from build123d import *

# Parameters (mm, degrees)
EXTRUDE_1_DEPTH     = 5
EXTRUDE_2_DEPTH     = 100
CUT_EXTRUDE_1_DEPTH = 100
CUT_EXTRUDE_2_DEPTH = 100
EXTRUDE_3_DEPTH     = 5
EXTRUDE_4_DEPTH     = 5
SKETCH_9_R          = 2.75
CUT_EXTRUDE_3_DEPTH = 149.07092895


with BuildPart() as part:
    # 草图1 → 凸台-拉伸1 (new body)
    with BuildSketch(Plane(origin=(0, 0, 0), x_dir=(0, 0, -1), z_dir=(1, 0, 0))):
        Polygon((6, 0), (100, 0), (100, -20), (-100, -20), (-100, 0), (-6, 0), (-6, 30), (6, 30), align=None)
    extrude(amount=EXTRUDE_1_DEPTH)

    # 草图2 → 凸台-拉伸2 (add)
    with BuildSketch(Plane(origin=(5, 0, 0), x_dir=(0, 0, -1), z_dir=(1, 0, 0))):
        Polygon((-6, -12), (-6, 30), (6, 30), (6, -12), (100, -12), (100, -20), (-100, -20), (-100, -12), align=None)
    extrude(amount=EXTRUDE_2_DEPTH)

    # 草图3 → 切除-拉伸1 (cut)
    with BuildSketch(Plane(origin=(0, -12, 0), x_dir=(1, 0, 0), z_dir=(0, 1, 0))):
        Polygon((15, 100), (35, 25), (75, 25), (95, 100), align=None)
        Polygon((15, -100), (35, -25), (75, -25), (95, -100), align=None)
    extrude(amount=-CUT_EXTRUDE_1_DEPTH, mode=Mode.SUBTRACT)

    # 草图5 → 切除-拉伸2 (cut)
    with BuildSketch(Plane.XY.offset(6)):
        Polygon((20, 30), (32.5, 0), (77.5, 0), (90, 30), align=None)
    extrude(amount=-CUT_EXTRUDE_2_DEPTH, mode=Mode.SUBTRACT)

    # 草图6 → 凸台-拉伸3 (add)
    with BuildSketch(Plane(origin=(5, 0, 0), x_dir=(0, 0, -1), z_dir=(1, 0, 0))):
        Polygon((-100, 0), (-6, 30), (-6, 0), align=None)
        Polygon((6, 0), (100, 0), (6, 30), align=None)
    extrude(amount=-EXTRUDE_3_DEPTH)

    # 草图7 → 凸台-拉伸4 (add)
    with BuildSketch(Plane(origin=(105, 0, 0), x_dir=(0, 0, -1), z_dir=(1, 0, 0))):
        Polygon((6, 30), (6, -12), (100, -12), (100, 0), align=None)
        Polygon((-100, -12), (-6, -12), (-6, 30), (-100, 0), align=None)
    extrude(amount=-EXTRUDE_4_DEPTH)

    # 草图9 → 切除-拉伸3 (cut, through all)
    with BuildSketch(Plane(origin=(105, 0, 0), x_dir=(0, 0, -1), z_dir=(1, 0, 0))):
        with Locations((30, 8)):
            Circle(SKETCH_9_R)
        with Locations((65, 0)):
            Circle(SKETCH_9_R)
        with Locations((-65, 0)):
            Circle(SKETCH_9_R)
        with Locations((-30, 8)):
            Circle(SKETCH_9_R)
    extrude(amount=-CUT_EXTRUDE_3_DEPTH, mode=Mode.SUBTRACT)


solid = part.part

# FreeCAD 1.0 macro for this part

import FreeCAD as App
import Part
import Sketcher

V = App.Vector
Q = App.Units.Quantity


def add_polygon(sketch, points):
    """Adds a closed chain of lines whose ends are joined by coincident constraints."""
    first, n = sketch.GeometryCount, len(points)
    for a, b in zip(points, points[1:] + points[:1]):
        sketch.addGeometry(Part.LineSegment(App.Vector(*a, 0), App.Vector(*b, 0)), False)
    for i in range(n):
        sketch.addConstraint(Sketcher.Constraint("Coincident", first + i, 2, first + (i + 1) % n, 1))

doc = App.newDocument("Part")
body = doc.addObject("PartDesign::Body", "Body")

# Sketch on YZ plane
sketch1 = body.newObject("Sketcher::SketchObject", "Sketch")
sketch1.AttachmentSupport = (doc.getObject("YZ_Plane"), [""])
sketch1.MapMode = "FlatFace"
add_polygon(sketch1, [(0, -100), (0, -6), (30, -6), (30, 6), (0, 6), (0, 100), (-20, 100), (-20, -100)])  # lines 0-7
sketch1.addConstraint([
    Sketcher.Constraint("Vertical", 0),
    Sketcher.Constraint("Horizontal", 1),
    Sketcher.Constraint("Vertical", 2),
    Sketcher.Constraint("Horizontal", 3),
    Sketcher.Constraint("Vertical", 4),
    Sketcher.Constraint("Horizontal", 5),
    Sketcher.Constraint("Vertical", 6),
    Sketcher.Constraint("Horizontal", 7),
    Sketcher.Constraint("Symmetric", 0, 2, 3, 2, -1, 1),
    Sketcher.Constraint("Symmetric", 4, 2, 7, 2, -1),
    Sketcher.Constraint("DistanceX", 1, 1, 1, 2, Q("30 mm")),
    Sketcher.Constraint("DistanceX", 5, 2, 5, 1, Q("20 mm")),
    Sketcher.Constraint("DistanceY", 0, 1, 0, 2, Q("94 mm")),
    Sketcher.Constraint("DistanceY", 2, 1, 2, 2, Q("12 mm")),
])
pad1 = body.newObject("PartDesign::Pad", "Pad")
pad1.Profile = sketch1
pad1.Length = 5

# Sketch on YZ plane
sketch2 = body.newObject("Sketcher::SketchObject", "Sketch001")
sketch2.AttachmentSupport = (doc.getObject("YZ_Plane"), [""])
sketch2.MapMode = "FlatFace"
sketch2.AttachmentOffset = App.Placement(V(0, 0, 5), App.Rotation())
add_polygon(sketch2, [(30, 6), (-12, 6), (-12, 100), (-20, 100), (-20, -100), (-12, -100), (-12, -6), (30, -6)])  # lines 0-7
sketch2.addConstraint([
    Sketcher.Constraint("Horizontal", 0),
    Sketcher.Constraint("Vertical", 1),
    Sketcher.Constraint("Horizontal", 2),
    Sketcher.Constraint("Vertical", 3),
    Sketcher.Constraint("Horizontal", 4),
    Sketcher.Constraint("Vertical", 5),
    Sketcher.Constraint("Horizontal", 6),
    Sketcher.Constraint("Vertical", 7),
    Sketcher.Constraint("Symmetric", 1, 2, 4, 2, -1),
    Sketcher.Constraint("Equal", 1, 5),
    Sketcher.Constraint("DistanceX", 0, 2, 0, 1, Q("42 mm")),
    Sketcher.Constraint("DistanceX", 2, 2, 2, 1, Q("8 mm")),
    Sketcher.Constraint("DistanceY", 1, 1, 1, 2, Q("94 mm")),
    Sketcher.Constraint("DistanceY", 3, 2, 3, 1, Q("200 mm")),
    Sketcher.Constraint("DistanceX", 0, 2, -1, 1, Q("12 mm")),
])
pad2 = body.newObject("PartDesign::Pad", "Pad001")
pad2.Profile = sketch2
pad2.Length = 100

# Sketch on XZ plane
sketch3 = body.newObject("Sketcher::SketchObject", "Sketch002")
sketch3.AttachmentSupport = (doc.getObject("XZ_Plane"), [""])
sketch3.MapMode = "FlatFace"
sketch3.AttachmentOffset = App.Placement(V(0, 0, 12), App.Rotation())
add_polygon(sketch3, [(15, -100), (35, -25), (75, -25), (95, -100)])  # lines 0-3
add_polygon(sketch3, [(35, 25), (15, 100), (95, 100), (75, 25)])  # lines 4-7
sketch3.addConstraint([
    Sketcher.Constraint("Horizontal", 1),
    Sketcher.Constraint("Horizontal", 3),
    Sketcher.Constraint("Horizontal", 5),
    Sketcher.Constraint("Horizontal", 7),
    Sketcher.Constraint("Symmetric", 3, 2, 4, 2, -1),
    Sketcher.Constraint("Symmetric", 1, 2, 6, 2, -1),
    Sketcher.Constraint("Parallel", 2, 4),
    Sketcher.Constraint("Parallel", 0, 6),
    Sketcher.Constraint("Vertical", 2, 2, 5, 2),
    Sketcher.Constraint("DistanceX", 1, 1, 1, 2, Q("40 mm")),
    Sketcher.Constraint("DistanceX", 3, 2, 3, 1, Q("80 mm")),
    Sketcher.Constraint("DistanceX", -1, 1, 0, 2, Q("35 mm")),
    Sketcher.Constraint("DistanceY", 0, 2, -1, 1, Q("25 mm")),
    Sketcher.Constraint("DistanceY", 2, 2, -1, 1, Q("100 mm")),
])
pocket1 = body.newObject("PartDesign::Pocket", "Pocket")
pocket1.Profile = sketch3
pocket1.Length = 100
pocket1.Reversed = True

# Sketch on XY plane
sketch4 = body.newObject("Sketcher::SketchObject", "Sketch003")
sketch4.AttachmentSupport = (doc.getObject("XY_Plane"), [""])
sketch4.MapMode = "FlatFace"
sketch4.AttachmentOffset = App.Placement(V(0, 0, 6), App.Rotation())
add_polygon(sketch4, [(20, 30), (32.5, 0), (77.5, 0), (90, 30)])  # lines 0-3
sketch4.addConstraint([
    Sketcher.Constraint("Horizontal", 1),
    Sketcher.Constraint("Horizontal", 3),
    Sketcher.Constraint("PointOnObject", 0, 2, -1),
    Sketcher.Constraint("Equal", 0, 2),
    Sketcher.Constraint("DistanceX", 1, 1, 1, 2, Q("45 mm")),
    Sketcher.Constraint("DistanceX", 3, 2, 3, 1, Q("70 mm")),
    Sketcher.Constraint("DistanceX", -1, 1, 2, 2, Q("90 mm")),
    Sketcher.Constraint("DistanceY", -1, 1, 2, 2, Q("30 mm")),
])
pocket2 = body.newObject("PartDesign::Pocket", "Pocket001")
pocket2.Profile = sketch4
pocket2.Length = 100

# Sketch on YZ plane
sketch5 = body.newObject("Sketcher::SketchObject", "Sketch004")
sketch5.AttachmentSupport = (doc.getObject("YZ_Plane"), [""])
sketch5.MapMode = "FlatFace"
sketch5.AttachmentOffset = App.Placement(V(0, 0, 5), App.Rotation())
add_polygon(sketch5, [(30, 6), (0, 100), (0, 6)])  # lines 0-2
add_polygon(sketch5, [(0, -6), (0, -100), (30, -6)])  # lines 3-5
sketch5.addConstraint([
    Sketcher.Constraint("Vertical", 1),
    Sketcher.Constraint("Horizontal", 2),
    Sketcher.Constraint("Vertical", 3),
    Sketcher.Constraint("Horizontal", 5),
    Sketcher.Constraint("Symmetric", 0, 2, 3, 2, -1, 1),
    Sketcher.Constraint("Symmetric", 2, 2, 4, 2, -1),
    Sketcher.Constraint("PointOnObject", 0, 2, -2),
    Sketcher.Constraint("DistanceX", 2, 1, 2, 2, Q("30 mm")),
    Sketcher.Constraint("DistanceY", 1, 2, 1, 1, Q("94 mm")),
    Sketcher.Constraint("DistanceY", -1, 1, 0, 2, Q("100 mm")),
])
pad3 = body.newObject("PartDesign::Pad", "Pad002")
pad3.Profile = sketch5
pad3.Length = 5
pad3.Reversed = True

# Sketch on YZ plane
sketch6 = body.newObject("Sketcher::SketchObject", "Sketch005")
sketch6.AttachmentSupport = (doc.getObject("YZ_Plane"), [""])
sketch6.MapMode = "FlatFace"
sketch6.AttachmentOffset = App.Placement(V(0, 0, 105), App.Rotation())
add_polygon(sketch6, [(30, -6), (-12, -6), (-12, -100), (0, -100)])  # lines 0-3
add_polygon(sketch6, [(-12, 100), (-12, 6), (30, 6), (0, 100)])  # lines 4-7
sketch6.addConstraint([
    Sketcher.Constraint("Horizontal", 0),
    Sketcher.Constraint("Vertical", 1),
    Sketcher.Constraint("Horizontal", 2),
    Sketcher.Constraint("Vertical", 4),
    Sketcher.Constraint("Horizontal", 5),
    Sketcher.Constraint("Horizontal", 7),
    Sketcher.Constraint("Symmetric", 2, 2, 6, 2, -1, 1),
    Sketcher.Constraint("Symmetric", 0, 2, 4, 2, -1),
    Sketcher.Constraint("PointOnObject", 2, 2, -2),
    Sketcher.Constraint("Vertical", 3, 2, 5, 2),
    Sketcher.Constraint("DistanceX", 0, 2, 0, 1, Q("42 mm")),
    Sketcher.Constraint("DistanceX", 2, 1, 2, 2, Q("12 mm")),
    Sketcher.Constraint("DistanceY", 1, 2, 1, 1, Q("94 mm")),
    Sketcher.Constraint("DistanceY", 0, 2, -1, 1, Q("6 mm")),
])
pad4 = body.newObject("PartDesign::Pad", "Pad003")
pad4.Profile = sketch6
pad4.Length = 5
pad4.Reversed = True

# Sketch on YZ plane
sketch7 = body.newObject("Sketcher::SketchObject", "Sketch006")
sketch7.AttachmentSupport = (doc.getObject("YZ_Plane"), [""])
sketch7.MapMode = "FlatFace"
sketch7.AttachmentOffset = App.Placement(V(0, 0, 105), App.Rotation())
sketch7.addGeometry([
    Part.Circle(V(8, -30, 0), V(0, 0, 1), 2.75),
    Part.Circle(V(0, -65, 0), V(0, 0, 1), 2.75),
    Part.Circle(V(0, 65, 0), V(0, 0, 1), 2.75),
    Part.Circle(V(8, 30, 0), V(0, 0, 1), 2.75),
], False)
sketch7.addConstraint([
    Sketcher.Constraint("Equal", 0, 1),
    Sketcher.Constraint("Equal", 1, 2),
    Sketcher.Constraint("Equal", 2, 3),
    Sketcher.Constraint("Symmetric", 1, 3, 2, 3, -1, 1),
    Sketcher.Constraint("Symmetric", 0, 3, 3, 3, -1),
    Sketcher.Constraint("PointOnObject", 1, 3, -2),
    Sketcher.Constraint("Diameter", 0, Q("5.5 mm")),
    Sketcher.Constraint("DistanceX", -1, 1, 0, 3, Q("8 mm")),
    Sketcher.Constraint("DistanceY", 0, 3, -1, 1, Q("30 mm")),
    Sketcher.Constraint("DistanceY", 1, 3, -1, 1, Q("65 mm")),
])
pocket3 = body.newObject("PartDesign::Pocket", "Pocket002")
pocket3.Profile = sketch7
pocket3.Type = "ThroughAll"

doc.recompute()
